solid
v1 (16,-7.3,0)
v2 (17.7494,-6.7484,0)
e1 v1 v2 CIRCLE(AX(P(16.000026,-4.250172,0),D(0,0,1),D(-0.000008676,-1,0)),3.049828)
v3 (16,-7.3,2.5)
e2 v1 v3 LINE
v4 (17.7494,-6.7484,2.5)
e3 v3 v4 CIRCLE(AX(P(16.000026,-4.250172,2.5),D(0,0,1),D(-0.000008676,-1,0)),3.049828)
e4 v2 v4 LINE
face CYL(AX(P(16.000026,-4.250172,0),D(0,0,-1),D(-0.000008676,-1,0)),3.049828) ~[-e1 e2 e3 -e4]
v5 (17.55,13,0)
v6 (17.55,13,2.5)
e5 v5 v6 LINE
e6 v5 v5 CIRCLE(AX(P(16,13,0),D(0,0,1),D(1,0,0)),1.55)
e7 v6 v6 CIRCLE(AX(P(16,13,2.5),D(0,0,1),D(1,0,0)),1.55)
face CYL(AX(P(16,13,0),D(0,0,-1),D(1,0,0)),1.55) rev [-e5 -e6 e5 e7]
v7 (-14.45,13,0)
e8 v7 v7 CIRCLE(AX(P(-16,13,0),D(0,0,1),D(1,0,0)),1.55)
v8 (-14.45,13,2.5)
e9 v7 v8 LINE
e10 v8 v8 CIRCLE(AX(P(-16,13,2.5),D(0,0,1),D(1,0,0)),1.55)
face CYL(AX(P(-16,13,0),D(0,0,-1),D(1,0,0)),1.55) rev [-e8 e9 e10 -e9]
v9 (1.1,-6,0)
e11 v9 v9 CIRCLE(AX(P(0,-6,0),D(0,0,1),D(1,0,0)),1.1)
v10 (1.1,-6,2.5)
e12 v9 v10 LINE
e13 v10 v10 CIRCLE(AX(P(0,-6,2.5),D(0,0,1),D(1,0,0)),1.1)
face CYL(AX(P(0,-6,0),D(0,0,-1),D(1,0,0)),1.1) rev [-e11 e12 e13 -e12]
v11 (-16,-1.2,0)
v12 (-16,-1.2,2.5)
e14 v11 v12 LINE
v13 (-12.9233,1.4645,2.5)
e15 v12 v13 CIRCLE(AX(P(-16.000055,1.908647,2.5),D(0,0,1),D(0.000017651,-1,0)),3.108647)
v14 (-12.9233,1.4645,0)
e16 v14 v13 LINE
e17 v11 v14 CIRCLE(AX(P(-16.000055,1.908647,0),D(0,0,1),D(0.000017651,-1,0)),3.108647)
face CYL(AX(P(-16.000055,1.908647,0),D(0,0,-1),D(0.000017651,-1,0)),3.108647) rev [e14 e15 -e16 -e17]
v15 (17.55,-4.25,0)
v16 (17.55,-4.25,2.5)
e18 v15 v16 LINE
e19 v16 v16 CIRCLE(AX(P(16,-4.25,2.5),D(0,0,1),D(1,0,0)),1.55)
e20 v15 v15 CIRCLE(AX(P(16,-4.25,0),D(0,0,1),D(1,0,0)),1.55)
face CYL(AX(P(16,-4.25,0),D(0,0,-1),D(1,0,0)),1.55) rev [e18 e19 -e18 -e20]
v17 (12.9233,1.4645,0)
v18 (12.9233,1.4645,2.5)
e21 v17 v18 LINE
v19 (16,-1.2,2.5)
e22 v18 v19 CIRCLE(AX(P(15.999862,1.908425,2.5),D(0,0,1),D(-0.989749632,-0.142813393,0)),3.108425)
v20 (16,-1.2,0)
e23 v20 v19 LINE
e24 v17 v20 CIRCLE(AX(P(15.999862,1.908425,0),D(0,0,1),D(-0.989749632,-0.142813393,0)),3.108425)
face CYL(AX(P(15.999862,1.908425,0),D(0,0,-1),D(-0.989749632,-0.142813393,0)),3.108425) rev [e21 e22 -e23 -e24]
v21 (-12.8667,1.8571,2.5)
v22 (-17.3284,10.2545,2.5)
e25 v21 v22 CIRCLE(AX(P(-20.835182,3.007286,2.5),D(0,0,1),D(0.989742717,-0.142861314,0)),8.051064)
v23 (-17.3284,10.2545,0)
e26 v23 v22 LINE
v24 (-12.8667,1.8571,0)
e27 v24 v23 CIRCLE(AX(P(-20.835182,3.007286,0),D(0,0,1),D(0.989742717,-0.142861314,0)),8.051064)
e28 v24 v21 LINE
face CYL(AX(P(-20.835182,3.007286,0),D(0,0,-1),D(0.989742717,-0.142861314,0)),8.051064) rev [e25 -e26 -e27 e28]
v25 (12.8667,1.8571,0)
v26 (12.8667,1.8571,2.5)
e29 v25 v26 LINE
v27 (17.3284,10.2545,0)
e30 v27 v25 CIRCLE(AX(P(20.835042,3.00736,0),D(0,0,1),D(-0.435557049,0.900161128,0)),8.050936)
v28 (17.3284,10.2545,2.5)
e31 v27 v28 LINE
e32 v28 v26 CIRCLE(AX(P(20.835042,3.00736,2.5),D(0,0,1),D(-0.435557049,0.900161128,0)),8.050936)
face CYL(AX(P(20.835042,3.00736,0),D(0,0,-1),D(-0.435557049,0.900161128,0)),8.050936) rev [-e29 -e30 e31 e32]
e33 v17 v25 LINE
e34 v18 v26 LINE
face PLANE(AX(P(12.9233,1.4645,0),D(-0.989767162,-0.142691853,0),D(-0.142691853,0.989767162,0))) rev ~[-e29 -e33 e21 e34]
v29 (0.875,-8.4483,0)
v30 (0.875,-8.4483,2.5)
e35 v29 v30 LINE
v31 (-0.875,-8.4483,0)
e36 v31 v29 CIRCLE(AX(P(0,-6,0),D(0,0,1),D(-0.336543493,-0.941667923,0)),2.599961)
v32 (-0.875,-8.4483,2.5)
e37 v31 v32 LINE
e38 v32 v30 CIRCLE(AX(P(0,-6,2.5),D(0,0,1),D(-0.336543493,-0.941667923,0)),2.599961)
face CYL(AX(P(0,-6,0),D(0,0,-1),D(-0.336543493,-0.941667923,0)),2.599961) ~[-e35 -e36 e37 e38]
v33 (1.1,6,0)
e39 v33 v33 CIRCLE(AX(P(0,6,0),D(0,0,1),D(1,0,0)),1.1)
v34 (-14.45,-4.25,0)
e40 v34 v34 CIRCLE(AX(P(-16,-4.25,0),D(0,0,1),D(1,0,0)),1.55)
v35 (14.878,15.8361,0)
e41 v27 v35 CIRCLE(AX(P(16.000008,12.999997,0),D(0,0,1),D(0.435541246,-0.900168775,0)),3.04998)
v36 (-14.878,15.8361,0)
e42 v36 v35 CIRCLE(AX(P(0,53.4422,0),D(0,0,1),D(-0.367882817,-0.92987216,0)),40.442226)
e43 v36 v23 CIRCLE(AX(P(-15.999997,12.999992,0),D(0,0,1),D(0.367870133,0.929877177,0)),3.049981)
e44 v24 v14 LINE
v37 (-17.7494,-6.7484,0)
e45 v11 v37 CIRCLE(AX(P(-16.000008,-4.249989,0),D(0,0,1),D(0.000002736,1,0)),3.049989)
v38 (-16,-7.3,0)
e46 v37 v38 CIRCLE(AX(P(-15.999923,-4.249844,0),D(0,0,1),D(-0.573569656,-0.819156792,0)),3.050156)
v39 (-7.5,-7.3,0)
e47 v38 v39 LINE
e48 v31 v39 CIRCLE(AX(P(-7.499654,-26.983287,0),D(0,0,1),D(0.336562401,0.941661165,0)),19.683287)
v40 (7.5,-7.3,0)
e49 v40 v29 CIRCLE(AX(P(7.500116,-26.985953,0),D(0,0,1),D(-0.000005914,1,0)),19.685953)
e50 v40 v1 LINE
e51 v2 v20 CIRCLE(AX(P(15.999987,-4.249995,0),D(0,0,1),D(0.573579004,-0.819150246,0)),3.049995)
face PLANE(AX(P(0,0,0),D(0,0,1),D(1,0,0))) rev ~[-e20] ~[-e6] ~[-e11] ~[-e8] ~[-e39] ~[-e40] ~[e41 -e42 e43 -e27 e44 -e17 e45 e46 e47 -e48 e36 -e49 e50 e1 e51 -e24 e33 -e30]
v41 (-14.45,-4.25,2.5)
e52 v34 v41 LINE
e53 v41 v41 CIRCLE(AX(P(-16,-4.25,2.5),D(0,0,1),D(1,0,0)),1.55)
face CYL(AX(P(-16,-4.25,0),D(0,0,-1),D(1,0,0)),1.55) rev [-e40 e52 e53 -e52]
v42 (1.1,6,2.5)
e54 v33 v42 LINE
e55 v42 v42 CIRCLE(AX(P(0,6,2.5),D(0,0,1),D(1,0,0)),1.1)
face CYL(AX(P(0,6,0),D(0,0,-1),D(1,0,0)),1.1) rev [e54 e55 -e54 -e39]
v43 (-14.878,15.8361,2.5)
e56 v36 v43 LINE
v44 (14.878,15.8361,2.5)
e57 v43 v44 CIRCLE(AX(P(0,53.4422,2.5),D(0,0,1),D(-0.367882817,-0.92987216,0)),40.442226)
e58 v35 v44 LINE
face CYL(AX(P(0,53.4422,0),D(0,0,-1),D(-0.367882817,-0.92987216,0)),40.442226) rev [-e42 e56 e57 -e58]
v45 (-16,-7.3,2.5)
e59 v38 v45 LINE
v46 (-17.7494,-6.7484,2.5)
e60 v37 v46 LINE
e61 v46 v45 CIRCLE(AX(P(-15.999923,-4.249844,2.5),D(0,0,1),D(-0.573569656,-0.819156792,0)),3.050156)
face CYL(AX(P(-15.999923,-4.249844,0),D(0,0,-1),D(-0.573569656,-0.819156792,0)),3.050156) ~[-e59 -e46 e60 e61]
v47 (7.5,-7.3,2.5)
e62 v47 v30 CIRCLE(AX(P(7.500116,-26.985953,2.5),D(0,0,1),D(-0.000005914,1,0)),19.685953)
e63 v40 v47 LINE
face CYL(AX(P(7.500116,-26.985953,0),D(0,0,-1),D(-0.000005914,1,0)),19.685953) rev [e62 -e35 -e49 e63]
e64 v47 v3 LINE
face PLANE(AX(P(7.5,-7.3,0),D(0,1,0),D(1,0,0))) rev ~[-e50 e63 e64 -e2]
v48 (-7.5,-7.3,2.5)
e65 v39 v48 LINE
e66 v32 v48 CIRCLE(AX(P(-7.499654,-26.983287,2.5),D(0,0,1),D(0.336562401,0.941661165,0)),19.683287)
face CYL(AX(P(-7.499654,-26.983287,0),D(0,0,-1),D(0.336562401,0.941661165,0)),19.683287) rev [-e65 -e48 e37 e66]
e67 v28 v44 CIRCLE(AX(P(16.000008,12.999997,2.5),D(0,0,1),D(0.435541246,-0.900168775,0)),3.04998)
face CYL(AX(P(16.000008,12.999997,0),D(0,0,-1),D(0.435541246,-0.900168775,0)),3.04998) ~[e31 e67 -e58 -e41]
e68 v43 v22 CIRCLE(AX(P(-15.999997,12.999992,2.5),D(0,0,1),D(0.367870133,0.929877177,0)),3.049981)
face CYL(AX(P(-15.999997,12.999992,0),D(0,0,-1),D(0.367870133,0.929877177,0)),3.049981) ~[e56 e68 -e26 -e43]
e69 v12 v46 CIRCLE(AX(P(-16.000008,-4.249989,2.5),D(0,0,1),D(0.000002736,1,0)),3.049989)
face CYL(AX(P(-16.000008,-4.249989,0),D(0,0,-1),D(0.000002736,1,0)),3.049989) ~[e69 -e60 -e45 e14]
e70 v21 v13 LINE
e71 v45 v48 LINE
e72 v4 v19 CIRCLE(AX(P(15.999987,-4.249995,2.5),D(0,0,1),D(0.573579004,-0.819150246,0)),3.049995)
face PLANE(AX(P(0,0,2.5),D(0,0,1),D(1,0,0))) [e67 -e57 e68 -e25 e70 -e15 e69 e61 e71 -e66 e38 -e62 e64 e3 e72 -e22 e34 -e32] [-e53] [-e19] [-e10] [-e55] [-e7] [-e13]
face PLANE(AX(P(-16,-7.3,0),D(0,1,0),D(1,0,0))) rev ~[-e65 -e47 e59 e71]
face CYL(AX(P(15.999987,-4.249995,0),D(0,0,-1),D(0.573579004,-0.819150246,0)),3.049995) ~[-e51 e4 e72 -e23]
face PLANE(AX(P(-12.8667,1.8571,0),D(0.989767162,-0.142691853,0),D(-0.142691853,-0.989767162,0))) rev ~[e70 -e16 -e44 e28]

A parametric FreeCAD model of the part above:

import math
import FreeCAD as App
import Part
import Sketcher
from FreeCAD import Vector

doc = App.newDocument("Part")
body = doc.addObject("PartDesign::Body", "Body")

# Sketch on XY plane
sketch1 = body.newObject("Sketcher::SketchObject", "Sketch")
sketch1.AttachmentSupport = (doc.getObject("XY_Plane"), [""])
sketch1.MapMode = "FlatFace"
sketch1.addGeometry(Part.ArcOfCircle(Part.Circle(Vector(16, -4.25, 0), Vector(0, 0, 1), 3.049984), math.radians(-90), math.radians(-54.999977)), False)
sketch1.addGeometry(Part.ArcOfCircle(Part.Circle(Vector(16, -4.25, 0), Vector(0, 0, 1), 3.05), math.radians(-54.999977), math.radians(90)), False)
sketch1.addGeometry(Part.ArcOfCircle(Part.Circle(Vector(16, 1.9085, 0), Vector(0, 0, 1), 3.108572), math.radians(-171.788311), math.radians(-90)), False)
sketch1.addGeometry(Part.LineSegment(Vector(12.9233, 1.4645, 0), Vector(12.8667, 1.8571, 0)), False)
sketch1.addGeometry(Part.ArcOfCircle(Part.Circle(Vector(20.8351, 3.0073, 0), Vector(0, 0, 1), 8.051016), math.radians(115.82093), math.radians(188.213637)), False)
sketch1.addGeometry(Part.ArcOfCircle(Part.Circle(Vector(16, 13, 0), Vector(0, 0, 1), 3.049986), math.radians(-64.180154), math.radians(111.58443)), False)
sketch1.addGeometry(Part.ArcOfCircle(Part.Circle(Vector(0, 53.4422, 0), Vector(0, 0, 1), 40.442226), math.radians(-111.585104), math.radians(-68.414896)), False)
sketch1.addGeometry(Part.ArcOfCircle(Part.Circle(Vector(-16, 13, 0), Vector(0, 0, 1), 3.049975), math.radians(68.41557), math.radians(244.180154)), False)
sketch1.addGeometry(Part.ArcOfCircle(Part.Circle(Vector(-20.8351, 3.0073, 0), Vector(0, 0, 1), 8.050985), math.radians(-8.213637), math.radians(64.17907)), False)
sketch1.addGeometry(Part.LineSegment(Vector(-12.8667, 1.8571, 0), Vector(-12.9233, 1.4645, 0)), False)
sketch1.addGeometry(Part.ArcOfCircle(Part.Circle(Vector(-16, 1.9085, 0), Vector(0, 0, 1), 3.1085), math.radians(-90), math.radians(-8.211689)), False)
sketch1.addGeometry(Part.ArcOfCircle(Part.Circle(Vector(-16, -4.25, 0), Vector(0, 0, 1), 3.049984), math.radians(90), math.radians(234.999977)), False)
sketch1.addGeometry(Part.ArcOfCircle(Part.Circle(Vector(-16, -4.25, 0), Vector(0, 0, 1), 3.05), math.radians(-125.000023), math.radians(-90)), False)
sketch1.addGeometry(Part.LineSegment(Vector(-16, -7.3, 0), Vector(-7.5, -7.3, 0)), False)
sketch1.addGeometry(Part.ArcOfCircle(Part.Circle(Vector(-7.499654, -26.983287, 0), Vector(0, 0, 1), 19.683287), math.radians(70.332425), math.radians(90.001007)), False)
sketch1.addGeometry(Part.ArcOfCircle(Part.Circle(Vector(0, -6, 0), Vector(0, 0, 1), 2.599961), math.radians(-109.666424), math.radians(-70.333576)), False)
sketch1.addGeometry(Part.ArcOfCircle(Part.Circle(Vector(7.500116, -26.985953, 0), Vector(0, 0, 1), 19.685953), math.radians(90.000339), math.radians(109.666229)), False)
sketch1.addGeometry(Part.LineSegment(Vector(7.5, -7.3, 0), Vector(16, -7.3, 0)), False)
sketch1.addGeometry(Part.Circle(Vector(-16, -4.25, 0), Vector(0, 0, 1), 1.55), False)
sketch1.addGeometry(Part.Circle(Vector(0, -6, 0), Vector(0, 0, 1), 1.1), False)
sketch1.addGeometry(Part.Circle(Vector(16, -4.25, 0), Vector(0, 0, 1), 1.55), False)
sketch1.addGeometry(Part.Circle(Vector(-16, 13, 0), Vector(0, 0, 1), 1.55), False)
sketch1.addGeometry(Part.Circle(Vector(0, 6, 0), Vector(0, 0, 1), 1.1), False)
sketch1.addGeometry(Part.Circle(Vector(16, 13, 0), Vector(0, 0, 1), 1.55), False)
sketch1.addConstraint(Sketcher.Constraint("Coincident", 0, 2, 1, 1))
sketch1.addConstraint(Sketcher.Constraint("Coincident", 1, 2, 2, 2))
sketch1.addConstraint(Sketcher.Constraint("Coincident", 2, 1, 3, 1))
sketch1.addConstraint(Sketcher.Constraint("Coincident", 3, 2, 4, 2))
sketch1.addConstraint(Sketcher.Constraint("Coincident", 4, 1, 5, 1))
sketch1.addConstraint(Sketcher.Constraint("Coincident", 5, 2, 6, 2))
sketch1.addConstraint(Sketcher.Constraint("Coincident", 6, 1, 7, 1))
sketch1.addConstraint(Sketcher.Constraint("Coincident", 7, 2, 8, 2))
sketch1.addConstraint(Sketcher.Constraint("Coincident", 8, 1, 9, 1))
sketch1.addConstraint(Sketcher.Constraint("Coincident", 9, 2, 10, 2))
sketch1.addConstraint(Sketcher.Constraint("Coincident", 10, 1, 11, 1))
sketch1.addConstraint(Sketcher.Constraint("Coincident", 11, 2, 12, 1))
sketch1.addConstraint(Sketcher.Constraint("Coincident", 12, 2, 13, 1))
sketch1.addConstraint(Sketcher.Constraint("Coincident", 13, 2, 14, 2))
sketch1.addConstraint(Sketcher.Constraint("Coincident", 14, 1, 15, 1))
sketch1.addConstraint(Sketcher.Constraint("Coincident", 15, 2, 16, 2))
sketch1.addConstraint(Sketcher.Constraint("Coincident", 16, 1, 17, 1))
sketch1.addConstraint(Sketcher.Constraint("Coincident", 17, 2, 0, 1))
sketch1.addConstraint(Sketcher.Constraint("Horizontal", 13))
sketch1.addConstraint(Sketcher.Constraint("Horizontal", 17))
sketch1.addConstraint(Sketcher.Constraint("Coincident", 1, 3, 0, 3))
sketch1.addConstraint(Sketcher.Constraint("Coincident", 12, 3, 11, 3))
sketch1.addConstraint(Sketcher.Constraint("Coincident", 18, 3, 11, 3))
sketch1.addConstraint(Sketcher.Constraint("Coincident", 19, 3, 15, 3))
sketch1.addConstraint(Sketcher.Constraint("Coincident", 20, 3, 0, 3))
sketch1.addConstraint(Sketcher.Constraint("Coincident", 21, 3, 7, 3))
sketch1.addConstraint(Sketcher.Constraint("Coincident", 23, 3, 5, 3))
sketch1.addConstraint(Sketcher.Constraint("PointOnObject", 6, 3, -2))
sketch1.addConstraint(Sketcher.Constraint("PointOnObject", 15, 3, -2))
sketch1.addConstraint(Sketcher.Constraint("PointOnObject", 22, 3, -2))
sketch1.addConstraint(Sketcher.Constraint("Diameter", 18, 3.1))
sketch1.addConstraint(Sketcher.Constraint("Diameter", 19, 2.2))
sketch1.addConstraint(Sketcher.Constraint("Diameter", 20, 3.1))
sketch1.addConstraint(Sketcher.Constraint("Diameter", 21, 3.1))
sketch1.addConstraint(Sketcher.Constraint("Diameter", 22, 2.2))
sketch1.addConstraint(Sketcher.Constraint("Diameter", 23, 3.1))
sketch1.addConstraint(Sketcher.Constraint("Radius", 15, 2.6))
sketch1.addConstraint(Sketcher.Constraint("Radius", 0, 3.05))
sketch1.addConstraint(Sketcher.Constraint("Radius", 5, 3.05))
sketch1.addConstraint(Sketcher.Constraint("Radius", 7, 3.05))
sketch1.addConstraint(Sketcher.Constraint("Radius", 11, 3.05))
sketch1.addConstraint(Sketcher.Constraint("DistanceX", 13, 1, 13, 2, 8.5))
sketch1.addConstraint(Sketcher.Constraint("DistanceX", 17, 1, 17, 2, 8.5))
sketch1.addConstraint(Sketcher.Constraint("DistanceX", -1, 1, 0, 3, 16.0))
sketch1.addConstraint(Sketcher.Constraint("DistanceX", -1, 1, 2, 3, 16.0))
sketch1.addConstraint(Sketcher.Constraint("DistanceX", -1, 1, 5, 3, 16.0))
sketch1.addConstraint(Sketcher.Constraint("DistanceY", -1, 1, 5, 3, 13.0))
sketch1.addConstraint(Sketcher.Constraint("DistanceX", 7, 3, -1, 1, 16.0))
sketch1.addConstraint(Sketcher.Constraint("DistanceX", 10, 3, -1, 1, 16.0))
sketch1.addConstraint(Sketcher.Constraint("DistanceX", 11, 3, -1, 1, 16.0))
sketch1.addConstraint(Sketcher.Constraint("DistanceY", 15, 3, -1, 1, 6.0))
sketch1.addConstraint(Sketcher.Constraint("DistanceY", -1, 1, 22, 3, 6.0))
sketch1.addConstraint(Sketcher.Constraint("DistanceX", -1, 1, 1, 2, 16.0))
sketch1.addConstraint(Sketcher.Constraint("DistanceX", 10, 1, -1, 1, 16.0))
sketch1.addConstraint(Sketcher.Constraint("DistanceX", 12, 2, -1, 1, 16.0))
sketch1.addConstraint(Sketcher.Constraint("DistanceX", -1, 1, 17, 2, 16.0))
sketch1.addConstraint(Sketcher.Constraint("Radius", 4, 8.051))
sketch1.addConstraint(Sketcher.Constraint("Radius", 8, 8.051))
sketch1.addConstraint(Sketcher.Constraint("Radius", 16, 19.686))
sketch1.addConstraint(Sketcher.Constraint("DistanceX", -1, 1, 16, 3, 7.5))
sketch1.addConstraint(Sketcher.Constraint("DistanceY", 10, 1, -1, 1, 1.2))
sketch1.addConstraint(Sketcher.Constraint("Radius", 2, 3.1086))
sketch1.addConstraint(Sketcher.Constraint("Radius", 6, 40.4422))
sketch1.addConstraint(Sketcher.Constraint("Radius", 10, 3.1085))
sketch1.addConstraint(Sketcher.Constraint("Radius", 14, 19.6833))
sketch1.addConstraint(Sketcher.Constraint("DistanceX", 14, 1, 15, 2, 1.75))
sketch1.addConstraint(Sketcher.Constraint("DistanceX", -1, 1, 4, 3, 20.835))
sketch1.addConstraint(Sketcher.Constraint("DistanceX", 8, 3, -1, 1, 20.835))
sketch1.addConstraint(Sketcher.Constraint("DistanceY", -1, 1, 3, 2, 1.857))
sketch1.addConstraint(Sketcher.Constraint("DistanceX", -1, 1, 5, 2, 14.878))
sketch1.addConstraint(Sketcher.Constraint("DistanceX", 6, 1, -1, 1, 14.878))
sketch1.addConstraint(Sketcher.Constraint("DistanceY", -1, 1, 8, 1, 1.857))
sketch1.addConstraint(Sketcher.Constraint("DistanceX", 14, 1, -1, 1, 0.875))
sketch1.addConstraint(Sketcher.Constraint("DistanceY", 0, 2, 2, 3, 8.657))
sketch1.addConstraint(Sketcher.Constraint("DistanceY", 2, 1, 2, 3, 0.444))
sketch1.addConstraint(Sketcher.Constraint("DistanceY", 2, 3, 4, 1, 8.346))
sketch1.addConstraint(Sketcher.Constraint("DistanceY", 10, 3, 7, 2, 8.346))
sketch1.addConstraint(Sketcher.Constraint("DistanceY", 9, 2, 10, 3, 0.444))
sketch1.addConstraint(Sketcher.Constraint("DistanceY", 11, 2, 10, 3, 8.657))
pad1 = body.newObject("PartDesign::Pad", "Pad")
pad1.Profile = sketch1
pad1.Length = 2.5

doc.recompute()
